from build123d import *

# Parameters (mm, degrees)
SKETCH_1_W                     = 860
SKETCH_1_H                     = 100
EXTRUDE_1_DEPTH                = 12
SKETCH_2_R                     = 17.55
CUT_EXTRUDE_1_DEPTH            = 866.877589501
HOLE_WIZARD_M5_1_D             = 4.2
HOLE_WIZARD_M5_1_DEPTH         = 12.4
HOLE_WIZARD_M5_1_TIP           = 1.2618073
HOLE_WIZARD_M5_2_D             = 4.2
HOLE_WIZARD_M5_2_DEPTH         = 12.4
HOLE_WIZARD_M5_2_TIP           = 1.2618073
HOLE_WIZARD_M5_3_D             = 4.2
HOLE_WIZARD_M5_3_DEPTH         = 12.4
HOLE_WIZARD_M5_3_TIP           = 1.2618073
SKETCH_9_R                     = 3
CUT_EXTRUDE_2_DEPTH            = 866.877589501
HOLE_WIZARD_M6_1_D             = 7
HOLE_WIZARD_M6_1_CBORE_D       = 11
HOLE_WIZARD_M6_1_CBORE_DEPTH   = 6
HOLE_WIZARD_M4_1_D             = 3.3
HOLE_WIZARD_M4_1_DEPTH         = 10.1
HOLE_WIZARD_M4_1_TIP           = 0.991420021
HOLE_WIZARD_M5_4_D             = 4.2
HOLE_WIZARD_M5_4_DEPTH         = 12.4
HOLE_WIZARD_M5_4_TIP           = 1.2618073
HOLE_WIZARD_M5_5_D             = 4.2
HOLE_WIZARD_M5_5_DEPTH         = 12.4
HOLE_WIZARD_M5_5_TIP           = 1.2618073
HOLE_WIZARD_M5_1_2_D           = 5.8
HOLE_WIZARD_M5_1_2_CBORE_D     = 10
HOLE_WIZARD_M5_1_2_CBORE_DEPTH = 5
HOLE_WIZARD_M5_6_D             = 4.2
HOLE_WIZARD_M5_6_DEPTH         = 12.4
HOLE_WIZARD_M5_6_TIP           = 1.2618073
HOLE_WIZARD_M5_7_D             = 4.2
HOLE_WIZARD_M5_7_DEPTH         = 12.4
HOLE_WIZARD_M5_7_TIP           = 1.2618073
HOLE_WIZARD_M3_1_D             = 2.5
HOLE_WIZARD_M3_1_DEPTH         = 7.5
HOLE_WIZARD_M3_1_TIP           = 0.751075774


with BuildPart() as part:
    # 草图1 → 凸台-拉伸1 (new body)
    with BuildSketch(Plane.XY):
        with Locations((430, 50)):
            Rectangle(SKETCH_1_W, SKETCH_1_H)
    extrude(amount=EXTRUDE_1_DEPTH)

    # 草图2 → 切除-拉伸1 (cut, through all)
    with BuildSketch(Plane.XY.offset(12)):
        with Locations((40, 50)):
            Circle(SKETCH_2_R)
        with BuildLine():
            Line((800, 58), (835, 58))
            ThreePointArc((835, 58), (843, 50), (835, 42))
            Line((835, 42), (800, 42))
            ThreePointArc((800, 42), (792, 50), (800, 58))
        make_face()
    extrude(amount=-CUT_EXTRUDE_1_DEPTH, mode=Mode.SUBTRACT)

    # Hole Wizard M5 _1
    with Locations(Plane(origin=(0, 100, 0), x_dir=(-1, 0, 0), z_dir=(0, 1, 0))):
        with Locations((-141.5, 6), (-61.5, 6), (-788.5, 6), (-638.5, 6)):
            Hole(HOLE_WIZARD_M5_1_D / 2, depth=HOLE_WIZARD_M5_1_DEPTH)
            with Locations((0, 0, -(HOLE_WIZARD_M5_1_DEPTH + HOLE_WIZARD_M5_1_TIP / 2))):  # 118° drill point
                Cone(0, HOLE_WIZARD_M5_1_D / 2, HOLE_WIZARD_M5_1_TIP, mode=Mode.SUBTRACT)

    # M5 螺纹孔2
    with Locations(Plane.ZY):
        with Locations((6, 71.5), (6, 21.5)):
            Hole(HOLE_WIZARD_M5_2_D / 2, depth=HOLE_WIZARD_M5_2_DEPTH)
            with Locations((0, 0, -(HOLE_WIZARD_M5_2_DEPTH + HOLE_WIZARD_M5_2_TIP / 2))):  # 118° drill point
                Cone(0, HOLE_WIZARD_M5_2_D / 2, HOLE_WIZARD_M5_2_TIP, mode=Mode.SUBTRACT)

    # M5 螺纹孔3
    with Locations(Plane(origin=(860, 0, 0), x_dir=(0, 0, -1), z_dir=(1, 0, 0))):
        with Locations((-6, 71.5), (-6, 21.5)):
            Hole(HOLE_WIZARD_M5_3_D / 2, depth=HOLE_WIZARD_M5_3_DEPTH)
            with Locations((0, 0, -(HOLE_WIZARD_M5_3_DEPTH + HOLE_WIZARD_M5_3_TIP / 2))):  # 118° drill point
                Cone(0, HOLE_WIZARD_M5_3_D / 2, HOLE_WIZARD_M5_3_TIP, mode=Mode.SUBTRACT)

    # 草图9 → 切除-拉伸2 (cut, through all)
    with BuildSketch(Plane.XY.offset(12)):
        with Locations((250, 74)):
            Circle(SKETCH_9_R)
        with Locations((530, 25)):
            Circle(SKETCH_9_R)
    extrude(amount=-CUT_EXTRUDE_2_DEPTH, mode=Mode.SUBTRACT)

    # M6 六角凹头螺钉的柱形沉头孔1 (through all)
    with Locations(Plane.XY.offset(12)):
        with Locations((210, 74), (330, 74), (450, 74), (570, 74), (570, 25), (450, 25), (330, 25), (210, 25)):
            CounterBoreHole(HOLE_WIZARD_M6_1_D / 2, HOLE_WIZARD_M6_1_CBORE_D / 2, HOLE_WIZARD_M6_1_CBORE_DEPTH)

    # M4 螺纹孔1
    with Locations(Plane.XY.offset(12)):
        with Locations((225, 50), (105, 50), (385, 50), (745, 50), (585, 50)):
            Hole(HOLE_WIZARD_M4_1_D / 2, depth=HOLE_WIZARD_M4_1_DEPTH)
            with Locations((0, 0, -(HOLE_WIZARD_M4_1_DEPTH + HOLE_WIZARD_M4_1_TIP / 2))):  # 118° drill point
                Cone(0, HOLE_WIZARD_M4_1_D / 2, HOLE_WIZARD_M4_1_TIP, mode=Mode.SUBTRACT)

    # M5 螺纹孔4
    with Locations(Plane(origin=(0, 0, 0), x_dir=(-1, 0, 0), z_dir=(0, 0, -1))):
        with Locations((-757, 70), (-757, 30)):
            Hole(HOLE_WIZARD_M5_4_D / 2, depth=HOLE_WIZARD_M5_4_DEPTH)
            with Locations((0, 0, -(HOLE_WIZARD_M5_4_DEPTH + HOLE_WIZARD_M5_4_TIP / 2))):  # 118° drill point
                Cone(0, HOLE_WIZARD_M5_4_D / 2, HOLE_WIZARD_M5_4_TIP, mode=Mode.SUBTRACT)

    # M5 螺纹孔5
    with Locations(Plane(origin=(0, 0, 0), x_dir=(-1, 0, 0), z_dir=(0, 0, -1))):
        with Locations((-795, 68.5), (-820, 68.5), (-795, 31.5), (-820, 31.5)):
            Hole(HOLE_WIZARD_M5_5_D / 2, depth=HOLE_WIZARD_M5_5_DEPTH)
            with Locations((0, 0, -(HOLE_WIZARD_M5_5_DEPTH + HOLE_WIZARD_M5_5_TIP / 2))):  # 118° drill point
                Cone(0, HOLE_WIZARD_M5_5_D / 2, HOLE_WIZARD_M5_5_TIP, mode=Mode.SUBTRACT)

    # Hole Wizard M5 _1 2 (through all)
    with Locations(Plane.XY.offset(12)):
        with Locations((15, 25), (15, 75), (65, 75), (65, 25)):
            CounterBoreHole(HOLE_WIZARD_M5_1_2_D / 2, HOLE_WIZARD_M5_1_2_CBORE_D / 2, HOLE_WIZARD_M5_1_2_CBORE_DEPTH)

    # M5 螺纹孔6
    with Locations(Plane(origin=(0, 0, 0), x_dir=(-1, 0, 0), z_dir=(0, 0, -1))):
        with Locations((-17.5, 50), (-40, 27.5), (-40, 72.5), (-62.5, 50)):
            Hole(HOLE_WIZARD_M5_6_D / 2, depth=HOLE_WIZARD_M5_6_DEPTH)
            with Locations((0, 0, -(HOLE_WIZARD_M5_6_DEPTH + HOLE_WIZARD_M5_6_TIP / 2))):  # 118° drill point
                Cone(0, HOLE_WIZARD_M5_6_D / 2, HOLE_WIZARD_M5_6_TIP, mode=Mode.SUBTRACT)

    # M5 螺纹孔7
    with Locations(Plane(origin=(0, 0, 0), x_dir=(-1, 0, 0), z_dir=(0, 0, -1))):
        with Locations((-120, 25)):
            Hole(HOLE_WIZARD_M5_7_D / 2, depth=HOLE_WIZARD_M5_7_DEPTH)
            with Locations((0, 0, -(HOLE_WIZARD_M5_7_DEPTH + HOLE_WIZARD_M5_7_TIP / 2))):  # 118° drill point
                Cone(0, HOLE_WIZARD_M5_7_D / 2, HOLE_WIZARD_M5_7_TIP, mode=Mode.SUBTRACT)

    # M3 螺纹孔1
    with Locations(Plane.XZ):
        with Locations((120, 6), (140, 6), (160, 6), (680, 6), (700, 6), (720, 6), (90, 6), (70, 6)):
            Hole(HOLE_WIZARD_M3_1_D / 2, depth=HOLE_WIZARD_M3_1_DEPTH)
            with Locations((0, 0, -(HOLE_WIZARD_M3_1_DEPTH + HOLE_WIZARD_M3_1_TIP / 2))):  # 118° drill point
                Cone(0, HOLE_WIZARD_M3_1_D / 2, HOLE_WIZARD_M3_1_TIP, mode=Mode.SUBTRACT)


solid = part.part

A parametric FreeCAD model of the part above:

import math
import FreeCAD as App
import Part
import Sketcher
from FreeCAD import Vector


def add_polygon(sketch, points):
    """Adds a closed chain of lines whose ends are joined by coincident constraints."""
    first, n = sketch.GeometryCount, len(points)
    for a, b in zip(points, points[1:] + points[:1]):
        sketch.addGeometry(Part.LineSegment(App.Vector(*a, 0), App.Vector(*b, 0)), False)
    for i in range(n):
        sketch.addConstraint(Sketcher.Constraint("Coincident", first + i, 2, first + (i + 1) % n, 1))

doc = App.newDocument("Part")
body = doc.addObject("PartDesign::Body", "Body")

# Sketch on XY plane
sketch1 = body.newObject("Sketcher::SketchObject", "Sketch")
sketch1.AttachmentSupport = (doc.getObject("XY_Plane"), [""])
sketch1.MapMode = "FlatFace"
add_polygon(sketch1, [(0, 100), (0, 0), (860, 0), (860, 100)])  # lines 0-3
sketch1.addConstraint([
    Sketcher.Constraint("Vertical", 0),
    Sketcher.Constraint("Horizontal", 1),
    Sketcher.Constraint("Vertical", 2),
    Sketcher.Constraint("Horizontal", 3),
    Sketcher.Constraint("Coincident", 0, 2, -1, 1),
    Sketcher.Constraint("DistanceX", 1, 1, 1, 2, 860.0),
    Sketcher.Constraint("DistanceY", 0, 2, 0, 1, 100.0),
])
pad1 = body.newObject("PartDesign::Pad", "Pad")
pad1.Profile = sketch1
pad1.Length = 12

# Sketch on XY plane
sketch2 = body.newObject("Sketcher::SketchObject", "Sketch001")
sketch2.AttachmentSupport = (doc.getObject("XY_Plane"), [""])
sketch2.MapMode = "FlatFace"
sketch2.AttachmentOffset = App.Placement(Vector(0, 0, 12), App.Rotation())
sketch2.addGeometry([
    Part.Circle(Vector(40, 50, 0), Vector(0, 0, 1), 17.55),  # 0
    Part.LineSegment(Vector(835, 58, 0), Vector(800, 58, 0)),  # 1
    Part.ArcOfCircle(Part.Circle(Vector(800, 50, 0), Vector(0, 0, 1), 8), math.radians(90), math.radians(270)),  # 2
    Part.LineSegment(Vector(800, 42, 0), Vector(835, 42, 0)),  # 3
    Part.ArcOfCircle(Part.Circle(Vector(835, 50, 0), Vector(0, 0, 1), 8), math.radians(-90), math.radians(90)),  # 4
], False)
sketch2.addConstraint([
    Sketcher.Constraint("Tangent", 1, 2, 2, 1),
    Sketcher.Constraint("Tangent", 2, 2, 3, 1),
    Sketcher.Constraint("Tangent", 3, 2, 4, 1),
    Sketcher.Constraint("Tangent", 4, 2, 1, 1),
    Sketcher.Constraint("Horizontal", 1),
    Sketcher.Constraint("Horizontal", 3),
    Sketcher.Constraint("Horizontal", 0, 3, 2, 3),
    Sketcher.Constraint("Radius", 2, 8.0),
    Sketcher.Constraint("Diameter", 0, 35.1),
    Sketcher.Constraint("DistanceX", 1, 2, 1, 1, 35.0),
    Sketcher.Constraint("DistanceX", -1, 1, 0, 3, 40.0),
    Sketcher.Constraint("DistanceY", -1, 1, 0, 3, 50.0),
    Sketcher.Constraint("DistanceX", -1, 1, 2, 3, 800.0),
])
pocket1 = body.newObject("PartDesign::Pocket", "Pocket")
pocket1.Profile = sketch2
pocket1.Type = "ThroughAll"

# Sketch on XZ plane
sketch3 = body.newObject("Sketcher::SketchObject", "Sketch002")
sketch3.AttachmentSupport = (doc.getObject("XZ_Plane"), [""])
sketch3.MapMode = "FlatFace"
sketch3.AttachmentOffset = App.Placement(Vector(0, 0, -100), App.Rotation())
sketch3.addGeometry([
    Part.Circle(Vector(141.5, 6, 0), Vector(0, 0, 1), 2.1),
    Part.Circle(Vector(61.5, 6, 0), Vector(0, 0, 1), 2.1),
    Part.Circle(Vector(788.5, 6, 0), Vector(0, 0, 1), 2.1),
    Part.Circle(Vector(638.5, 6, 0), Vector(0, 0, 1), 2.1),
], False)
sketch3.addConstraint([
    Sketcher.Constraint("Equal", 0, 1),
    Sketcher.Constraint("Equal", 1, 2),
    Sketcher.Constraint("Equal", 2, 3),
    Sketcher.Constraint("Horizontal", 0, 3, 1, 3),
    Sketcher.Constraint("Horizontal", 1, 3, 2, 3),
    Sketcher.Constraint("Horizontal", 2, 3, 3, 3),
    Sketcher.Constraint("Diameter", 0, 4.2),
    Sketcher.Constraint("DistanceY", -1, 1, 0, 3, 6.0),
    Sketcher.Constraint("DistanceX", 1, 3, 0, 3, 80.0),
    Sketcher.Constraint("DistanceX", 0, 3, 2, 3, 647.0),
    Sketcher.Constraint("DistanceX", 3, 3, 2, 3, 150.0),
    Sketcher.Constraint("DistanceX", -1, 1, 0, 3, 141.5),
])
doc.recompute()
hole = body.newObject("PartDesign::Hole", "Hole")
hole.Profile = sketch3
hole.ThreadType = "None"
hole.Diameter = 4.2
hole.DepthType = "Dimension"
hole.Depth = 12.4
hole.DrillPoint = "Angled"
hole.DrillPointAngle = 118
hole.Reversed = True

# Sketch on YZ plane
sketch4 = body.newObject("Sketcher::SketchObject", "Sketch003")
sketch4.AttachmentSupport = (doc.getObject("YZ_Plane"), [""])
sketch4.MapMode = "FlatFace"
sketch4.addGeometry([
    Part.Circle(Vector(71.5, 6, 0), Vector(0, 0, 1), 2.1),
    Part.Circle(Vector(21.5, 6, 0), Vector(0, 0, 1), 2.1),
], False)
sketch4.addConstraint([
    Sketcher.Constraint("Equal", 0, 1),
    Sketcher.Constraint("Horizontal", 0, 3, 1, 3),
    Sketcher.Constraint("Diameter", 0, 4.2),
    Sketcher.Constraint("DistanceY", -1, 1, 0, 3, 6.0),
    Sketcher.Constraint("DistanceX", 1, 3, 0, 3, 50.0),
    Sketcher.Constraint("DistanceX", -1, 1, 0, 3, 71.5),
])
doc.recompute()
hole2 = body.newObject("PartDesign::Hole", "Hole001")
hole2.Profile = sketch4
hole2.ThreadType = "None"
hole2.Diameter = 4.2
hole2.DepthType = "Dimension"
hole2.Depth = 12.4
hole2.DrillPoint = "Angled"
hole2.DrillPointAngle = 118
hole2.Reversed = True

# Sketch on YZ plane
sketch5 = body.newObject("Sketcher::SketchObject", "Sketch004")
sketch5.AttachmentSupport = (doc.getObject("YZ_Plane"), [""])
sketch5.MapMode = "FlatFace"
sketch5.AttachmentOffset = App.Placement(Vector(0, 0, 860), App.Rotation())
sketch5.addGeometry([
    Part.Circle(Vector(71.5, 6, 0), Vector(0, 0, 1), 2.1),
    Part.Circle(Vector(21.5, 6, 0), Vector(0, 0, 1), 2.1),
], False)
sketch5.addConstraint([
    Sketcher.Constraint("Equal", 0, 1),
    Sketcher.Constraint("Horizontal", 0, 3, 1, 3),
    Sketcher.Constraint("Diameter", 0, 4.2),
    Sketcher.Constraint("DistanceY", -1, 1, 0, 3, 6.0),
    Sketcher.Constraint("DistanceX", 1, 3, 0, 3, 50.0),
    Sketcher.Constraint("DistanceX", -1, 1, 0, 3, 71.5),
])
doc.recompute()
hole3 = body.newObject("PartDesign::Hole", "Hole002")
hole3.Profile = sketch5
hole3.ThreadType = "None"
hole3.Diameter = 4.2
hole3.DepthType = "Dimension"
hole3.Depth = 12.4
hole3.DrillPoint = "Angled"
hole3.DrillPointAngle = 118

# Sketch on XY plane
sketch6 = body.newObject("Sketcher::SketchObject", "Sketch005")
sketch6.AttachmentSupport = (doc.getObject("XY_Plane"), [""])
sketch6.MapMode = "FlatFace"
sketch6.AttachmentOffset = App.Placement(Vector(0, 0, 12), App.Rotation())
sketch6.addGeometry([
    Part.Circle(Vector(250, 74, 0), Vector(0, 0, 1), 3),
    Part.Circle(Vector(530, 25, 0), Vector(0, 0, 1), 3),
], False)
sketch6.addConstraint([
    Sketcher.Constraint("Equal", 0, 1),
    Sketcher.Constraint("Diameter", 0, 6.0),
    Sketcher.Constraint("DistanceX", -1, 1, 0, 3, 250.0),
    Sketcher.Constraint("DistanceY", -1, 1, 0, 3, 74.0),
    Sketcher.Constraint("DistanceX", -1, 1, 1, 3, 530.0),
    Sketcher.Constraint("DistanceY", -1, 1, 1, 3, 25.0),
])
pocket2 = body.newObject("PartDesign::Pocket", "Pocket001")
pocket2.Profile = sketch6
pocket2.Type = "ThroughAll"

# Sketch on XY plane
sketch7 = body.newObject("Sketcher::SketchObject", "Sketch006")
sketch7.AttachmentSupport = (doc.getObject("XY_Plane"), [""])
sketch7.MapMode = "FlatFace"
sketch7.AttachmentOffset = App.Placement(Vector(0, 0, 12), App.Rotation())
sketch7.addGeometry([
    Part.Circle(Vector(210, 74, 0), Vector(0, 0, 1), 3.5),  # 0
    Part.Circle(Vector(330, 74, 0), Vector(0, 0, 1), 3.5),  # 1
    Part.Circle(Vector(450, 74, 0), Vector(0, 0, 1), 3.5),  # 2
    Part.Circle(Vector(570, 74, 0), Vector(0, 0, 1), 3.5),  # 3
    Part.Circle(Vector(570, 25, 0), Vector(0, 0, 1), 3.5),  # 4
    Part.Circle(Vector(450, 25, 0), Vector(0, 0, 1), 3.5),  # 5
    Part.Circle(Vector(330, 25, 0), Vector(0, 0, 1), 3.5),  # 6
    Part.Circle(Vector(210, 25, 0), Vector(0, 0, 1), 3.5),  # 7
], False)
sketch7.addConstraint([
    Sketcher.Constraint("Equal", 0, 1),
    Sketcher.Constraint("Equal", 1, 2),
    Sketcher.Constraint("Equal", 2, 3),
    Sketcher.Constraint("Equal", 3, 4),
    Sketcher.Constraint("Equal", 4, 5),
    Sketcher.Constraint("Equal", 5, 6),
    Sketcher.Constraint("Equal", 6, 7),
    Sketcher.Constraint("Horizontal", 0, 3, 1, 3),
    Sketcher.Constraint("Horizontal", 1, 3, 2, 3),
    Sketcher.Constraint("Horizontal", 2, 3, 3, 3),
    Sketcher.Constraint("Horizontal", 4, 3, 5, 3),
    Sketcher.Constraint("Horizontal", 5, 3, 6, 3),
    Sketcher.Constraint("Horizontal", 6, 3, 7, 3),
    Sketcher.Constraint("Vertical", 3, 3, 4, 3),
    Sketcher.Constraint("Vertical", 2, 3, 5, 3),
    Sketcher.Constraint("Vertical", 1, 3, 6, 3),
    Sketcher.Constraint("Vertical", 0, 3, 7, 3),
    Sketcher.Constraint("Diameter", 0, 7.0),
    Sketcher.Constraint("DistanceX", -1, 1, 0, 3, 210.0),
    Sketcher.Constraint("DistanceY", -1, 1, 0, 3, 74.0),
    Sketcher.Constraint("DistanceX", -1, 1, 1, 3, 330.0),
    Sketcher.Constraint("DistanceX", -1, 1, 2, 3, 450.0),
    Sketcher.Constraint("DistanceX", -1, 1, 3, 3, 570.0),
    Sketcher.Constraint("DistanceY", -1, 1, 4, 3, 25.0),
])
doc.recompute()
hole4 = body.newObject("PartDesign::Hole", "Hole003")
hole4.Profile = sketch7
hole4.ThreadType = "None"
hole4.Diameter = 7
hole4.DepthType = "ThroughAll"
hole4.HoleCutType = "Counterbore"
hole4.HoleCutDiameter = 11
hole4.HoleCutDepth = 6

# Sketch on XY plane
sketch8 = body.newObject("Sketcher::SketchObject", "Sketch007")
sketch8.AttachmentSupport = (doc.getObject("XY_Plane"), [""])
sketch8.MapMode = "FlatFace"
sketch8.AttachmentOffset = App.Placement(Vector(0, 0, 12), App.Rotation())
sketch8.addGeometry([
    Part.Circle(Vector(225, 50, 0), Vector(0, 0, 1), 1.65),  # 0
    Part.Circle(Vector(105, 50, 0), Vector(0, 0, 1), 1.65),  # 1
    Part.Circle(Vector(385, 50, 0), Vector(0, 0, 1), 1.65),  # 2
    Part.Circle(Vector(745, 50, 0), Vector(0, 0, 1), 1.65),  # 3
    Part.Circle(Vector(585, 50, 0), Vector(0, 0, 1), 1.65),  # 4
], False)
sketch8.addConstraint([
    Sketcher.Constraint("Equal", 0, 1),
    Sketcher.Constraint("Equal", 1, 2),
    Sketcher.Constraint("Equal", 2, 3),
    Sketcher.Constraint("Equal", 3, 4),
    Sketcher.Constraint("Horizontal", 0, 3, 1, 3),
    Sketcher.Constraint("Horizontal", 1, 3, 2, 3),
    Sketcher.Constraint("Horizontal", 2, 3, 3, 3),
    Sketcher.Constraint("Horizontal", 3, 3, 4, 3),
    Sketcher.Constraint("Diameter", 0, 3.3),
    Sketcher.Constraint("DistanceX", -1, 1, 0, 3, 225.0),
    Sketcher.Constraint("DistanceY", -1, 1, 0, 3, 50.0),
    Sketcher.Constraint("DistanceX", -1, 1, 1, 3, 105.0),
    Sketcher.Constraint("DistanceX", -1, 1, 2, 3, 385.0),
    Sketcher.Constraint("DistanceX", -1, 1, 3, 3, 745.0),
    Sketcher.Constraint("DistanceX", -1, 1, 4, 3, 585.0),
])
doc.recompute()
hole5 = body.newObject("PartDesign::Hole", "Hole004")
hole5.Profile = sketch8
hole5.ThreadType = "None"
hole5.Diameter = 3.3
hole5.DepthType = "Dimension"
hole5.Depth = 10.1
hole5.DrillPoint = "Angled"
hole5.DrillPointAngle = 118

# Sketch on XY plane
sketch9 = body.newObject("Sketcher::SketchObject", "Sketch008")
sketch9.AttachmentSupport = (doc.getObject("XY_Plane"), [""])
sketch9.MapMode = "FlatFace"
sketch9.addGeometry([
    Part.Circle(Vector(757, 70, 0), Vector(0, 0, 1), 2.1),
    Part.Circle(Vector(757, 30, 0), Vector(0, 0, 1), 2.1),
], False)
sketch9.addConstraint([
    Sketcher.Constraint("Equal", 0, 1),
    Sketcher.Constraint("Vertical", 0, 3, 1, 3),
    Sketcher.Constraint("Diameter", 0, 4.2),
    Sketcher.Constraint("DistanceX", -1, 1, 0, 3, 757.0),
    Sketcher.Constraint("DistanceY", -1, 1, 0, 3, 70.0),
    Sketcher.Constraint("DistanceY", -1, 1, 1, 3, 30.0),
])
doc.recompute()
hole6 = body.newObject("PartDesign::Hole", "Hole005")
hole6.Profile = sketch9
hole6.ThreadType = "None"
hole6.Diameter = 4.2
hole6.DepthType = "Dimension"
hole6.Depth = 12.4
hole6.DrillPoint = "Angled"
hole6.DrillPointAngle = 118
hole6.Reversed = True

# Sketch on XY plane
sketch10 = body.newObject("Sketcher::SketchObject", "Sketch009")
sketch10.AttachmentSupport = (doc.getObject("XY_Plane"), [""])
sketch10.MapMode = "FlatFace"
sketch10.addGeometry([
    Part.Circle(Vector(795, 68.5, 0), Vector(0, 0, 1), 2.1),
    Part.Circle(Vector(820, 68.5, 0), Vector(0, 0, 1), 2.1),
    Part.Circle(Vector(795, 31.5, 0), Vector(0, 0, 1), 2.1),
    Part.Circle(Vector(820, 31.5, 0), Vector(0, 0, 1), 2.1),
], False)
sketch10.addConstraint([
    Sketcher.Constraint("Equal", 0, 1),
    Sketcher.Constraint("Equal", 1, 2),
    Sketcher.Constraint("Equal", 2, 3),
    Sketcher.Constraint("Horizontal", 0, 3, 1, 3),
    Sketcher.Constraint("Horizontal", 2, 3, 3, 3),
    Sketcher.Constraint("Vertical", 0, 3, 2, 3),
    Sketcher.Constraint("Vertical", 1, 3, 3, 3),
    Sketcher.Constraint("Diameter", 0, 4.2),
    Sketcher.Constraint("DistanceX", -1, 1, 0, 3, 795.0),
    Sketcher.Constraint("DistanceX", -1, 1, 1, 3, 820.0),
    Sketcher.Constraint("DistanceY", 2, 3, 0, 3, 37.0),
    Sketcher.Constraint("DistanceY", -1, 1, 0, 3, 68.5),
])
doc.recompute()
hole7 = body.newObject("PartDesign::Hole", "Hole006")
hole7.Profile = sketch10
hole7.ThreadType = "None"
hole7.Diameter = 4.2
hole7.DepthType = "Dimension"
hole7.Depth = 12.4
hole7.DrillPoint = "Angled"
hole7.DrillPointAngle = 118
hole7.Reversed = True

# Sketch on XY plane
sketch11 = body.newObject("Sketcher::SketchObject", "Sketch010")
sketch11.AttachmentSupport = (doc.getObject("XY_Plane"), [""])
sketch11.MapMode = "FlatFace"
sketch11.AttachmentOffset = App.Placement(Vector(0, 0, 12), App.Rotation())
sketch11.addGeometry([
    Part.Circle(Vector(15, 25, 0), Vector(0, 0, 1), 2.9),
    Part.Circle(Vector(15, 75, 0), Vector(0, 0, 1), 2.9),
    Part.Circle(Vector(65, 75, 0), Vector(0, 0, 1), 2.9),
    Part.Circle(Vector(65, 25, 0), Vector(0, 0, 1), 2.9),
], False)
sketch11.addConstraint([
    Sketcher.Constraint("Equal", 0, 1),
    Sketcher.Constraint("Equal", 1, 2),
    Sketcher.Constraint("Equal", 2, 3),
    Sketcher.Constraint("Horizontal", 1, 3, 2, 3),
    Sketcher.Constraint("Horizontal", 0, 3, 3, 3),
    Sketcher.Constraint("Vertical", 0, 3, 1, 3),
    Sketcher.Constraint("Vertical", 2, 3, 3, 3),
    Sketcher.Constraint("Diameter", 0, 5.8),
    Sketcher.Constraint("DistanceX", -1, 1, 0, 3, 15.0),
    Sketcher.Constraint("DistanceY", -1, 1, 0, 3, 25.0),
    Sketcher.Constraint("DistanceY", -1, 1, 1, 3, 75.0),
    Sketcher.Constraint("DistanceX", -1, 1, 2, 3, 65.0),
])
doc.recompute()
hole8 = body.newObject("PartDesign::Hole", "Hole007")
hole8.Profile = sketch11
hole8.ThreadType = "None"
hole8.Diameter = 5.8
hole8.DepthType = "ThroughAll"
hole8.HoleCutType = "Counterbore"
hole8.HoleCutDiameter = 10
hole8.HoleCutDepth = 5

# Sketch on XY plane
sketch12 = body.newObject("Sketcher::SketchObject", "Sketch011")
sketch12.AttachmentSupport = (doc.getObject("XY_Plane"), [""])
sketch12.MapMode = "FlatFace"
sketch12.addGeometry([
    Part.Circle(Vector(17.5, 50, 0), Vector(0, 0, 1), 2.1),
    Part.Circle(Vector(40, 27.5, 0), Vector(0, 0, 1), 2.1),
    Part.Circle(Vector(40, 72.5, 0), Vector(0, 0, 1), 2.1),
    Part.Circle(Vector(62.5, 50, 0), Vector(0, 0, 1), 2.1),
], False)
sketch12.addConstraint([
    Sketcher.Constraint("Equal", 0, 1),
    Sketcher.Constraint("Equal", 1, 2),
    Sketcher.Constraint("Equal", 2, 3),
    Sketcher.Constraint("Horizontal", 0, 3, 3, 3),
    Sketcher.Constraint("Vertical", 1, 3, 2, 3),
    Sketcher.Constraint("Diameter", 0, 4.2),
    Sketcher.Constraint("DistanceY", -1, 1, 0, 3, 50.0),
    Sketcher.Constraint("DistanceX", -1, 1, 1, 3, 40.0),
    Sketcher.Constraint("DistanceY", 1, 3, 2, 3, 45.0),
    Sketcher.Constraint("DistanceX", 0, 3, 3, 3, 45.0),
    Sketcher.Constraint("DistanceX", -1, 1, 0, 3, 17.5),
    Sketcher.Constraint("DistanceY", -1, 1, 1, 3, 27.5),
])
doc.recompute()
hole9 = body.newObject("PartDesign::Hole", "Hole008")
hole9.Profile = sketch12
hole9.ThreadType = "None"
hole9.Diameter = 4.2
hole9.DepthType = "Dimension"
hole9.Depth = 12.4
hole9.DrillPoint = "Angled"
hole9.DrillPointAngle = 118
hole9.Reversed = True

# Sketch on XY plane
sketch13 = body.newObject("Sketcher::SketchObject", "Sketch012")
sketch13.AttachmentSupport = (doc.getObject("XY_Plane"), [""])
sketch13.MapMode = "FlatFace"
sketch13.addGeometry(Part.Circle(Vector(120, 25, 0), Vector(0, 0, 1), 2.1), False)
sketch13.addConstraint([
    Sketcher.Constraint("Diameter", 0, 4.2),
    Sketcher.Constraint("DistanceX", -1, 1, 0, 3, 120.0),
    Sketcher.Constraint("DistanceY", -1, 1, 0, 3, 25.0),
])
doc.recompute()
hole10 = body.newObject("PartDesign::Hole", "Hole009")
hole10.Profile = sketch13
hole10.ThreadType = "None"
hole10.Diameter = 4.2
hole10.DepthType = "Dimension"
hole10.Depth = 12.4
hole10.DrillPoint = "Angled"
hole10.DrillPointAngle = 118
hole10.Reversed = True

# Sketch on XZ plane
sketch14 = body.newObject("Sketcher::SketchObject", "Sketch013")
sketch14.AttachmentSupport = (doc.getObject("XZ_Plane"), [""])
sketch14.MapMode = "FlatFace"
sketch14.addGeometry([
    Part.Circle(Vector(120, 6, 0), Vector(0, 0, 1), 1.25),  # 0
    Part.Circle(Vector(140, 6, 0), Vector(0, 0, 1), 1.25),  # 1
    Part.Circle(Vector(160, 6, 0), Vector(0, 0, 1), 1.25),  # 2
    Part.Circle(Vector(680, 6, 0), Vector(0, 0, 1), 1.25),  # 3
    Part.Circle(Vector(700, 6, 0), Vector(0, 0, 1), 1.25),  # 4
    Part.Circle(Vector(720, 6, 0), Vector(0, 0, 1), 1.25),  # 5
    Part.Circle(Vector(90, 6, 0), Vector(0, 0, 1), 1.25),  # 6
    Part.Circle(Vector(70, 6, 0), Vector(0, 0, 1), 1.25),  # 7
], False)
sketch14.addConstraint([
    Sketcher.Constraint("Equal", 0, 1),
    Sketcher.Constraint("Equal", 1, 2),
    Sketcher.Constraint("Equal", 2, 3),
    Sketcher.Constraint("Equal", 3, 4),
    Sketcher.Constraint("Equal", 4, 5),
    Sketcher.Constraint("Equal", 5, 6),
    Sketcher.Constraint("Equal", 6, 7),
    Sketcher.Constraint("Horizontal", 0, 3, 1, 3),
    Sketcher.Constraint("Horizontal", 1, 3, 2, 3),
    Sketcher.Constraint("Horizontal", 2, 3, 3, 3),
    Sketcher.Constraint("Horizontal", 3, 3, 4, 3),
    Sketcher.Constraint("Horizontal", 4, 3, 5, 3),
    Sketcher.Constraint("Horizontal", 5, 3, 6, 3),
    Sketcher.Constraint("Horizontal", 6, 3, 7, 3),
    Sketcher.Constraint("Diameter", 0, 2.5),
    Sketcher.Constraint("DistanceX", -1, 1, 0, 3, 120.0),
    Sketcher.Constraint("DistanceY", -1, 1, 0, 3, 6.0),
    Sketcher.Constraint("DistanceX", -1, 1, 1, 3, 140.0),
    Sketcher.Constraint("DistanceX", -1, 1, 2, 3, 160.0),
    Sketcher.Constraint("DistanceX", -1, 1, 3, 3, 680.0),
    Sketcher.Constraint("DistanceX", -1, 1, 4, 3, 700.0),
    Sketcher.Constraint("DistanceX", -1, 1, 5, 3, 720.0),
    Sketcher.Constraint("DistanceX", -1, 1, 6, 3, 90.0),
    Sketcher.Constraint("DistanceX", -1, 1, 7, 3, 70.0),
])
doc.recompute()
hole11 = body.newObject("PartDesign::Hole", "Hole010")
hole11.Profile = sketch14
hole11.ThreadType = "None"
hole11.Diameter = 2.5
hole11.DepthType = "Dimension"
hole11.Depth = 7.5
hole11.DrillPoint = "Angled"
hole11.DrillPointAngle = 118

doc.recompute()
